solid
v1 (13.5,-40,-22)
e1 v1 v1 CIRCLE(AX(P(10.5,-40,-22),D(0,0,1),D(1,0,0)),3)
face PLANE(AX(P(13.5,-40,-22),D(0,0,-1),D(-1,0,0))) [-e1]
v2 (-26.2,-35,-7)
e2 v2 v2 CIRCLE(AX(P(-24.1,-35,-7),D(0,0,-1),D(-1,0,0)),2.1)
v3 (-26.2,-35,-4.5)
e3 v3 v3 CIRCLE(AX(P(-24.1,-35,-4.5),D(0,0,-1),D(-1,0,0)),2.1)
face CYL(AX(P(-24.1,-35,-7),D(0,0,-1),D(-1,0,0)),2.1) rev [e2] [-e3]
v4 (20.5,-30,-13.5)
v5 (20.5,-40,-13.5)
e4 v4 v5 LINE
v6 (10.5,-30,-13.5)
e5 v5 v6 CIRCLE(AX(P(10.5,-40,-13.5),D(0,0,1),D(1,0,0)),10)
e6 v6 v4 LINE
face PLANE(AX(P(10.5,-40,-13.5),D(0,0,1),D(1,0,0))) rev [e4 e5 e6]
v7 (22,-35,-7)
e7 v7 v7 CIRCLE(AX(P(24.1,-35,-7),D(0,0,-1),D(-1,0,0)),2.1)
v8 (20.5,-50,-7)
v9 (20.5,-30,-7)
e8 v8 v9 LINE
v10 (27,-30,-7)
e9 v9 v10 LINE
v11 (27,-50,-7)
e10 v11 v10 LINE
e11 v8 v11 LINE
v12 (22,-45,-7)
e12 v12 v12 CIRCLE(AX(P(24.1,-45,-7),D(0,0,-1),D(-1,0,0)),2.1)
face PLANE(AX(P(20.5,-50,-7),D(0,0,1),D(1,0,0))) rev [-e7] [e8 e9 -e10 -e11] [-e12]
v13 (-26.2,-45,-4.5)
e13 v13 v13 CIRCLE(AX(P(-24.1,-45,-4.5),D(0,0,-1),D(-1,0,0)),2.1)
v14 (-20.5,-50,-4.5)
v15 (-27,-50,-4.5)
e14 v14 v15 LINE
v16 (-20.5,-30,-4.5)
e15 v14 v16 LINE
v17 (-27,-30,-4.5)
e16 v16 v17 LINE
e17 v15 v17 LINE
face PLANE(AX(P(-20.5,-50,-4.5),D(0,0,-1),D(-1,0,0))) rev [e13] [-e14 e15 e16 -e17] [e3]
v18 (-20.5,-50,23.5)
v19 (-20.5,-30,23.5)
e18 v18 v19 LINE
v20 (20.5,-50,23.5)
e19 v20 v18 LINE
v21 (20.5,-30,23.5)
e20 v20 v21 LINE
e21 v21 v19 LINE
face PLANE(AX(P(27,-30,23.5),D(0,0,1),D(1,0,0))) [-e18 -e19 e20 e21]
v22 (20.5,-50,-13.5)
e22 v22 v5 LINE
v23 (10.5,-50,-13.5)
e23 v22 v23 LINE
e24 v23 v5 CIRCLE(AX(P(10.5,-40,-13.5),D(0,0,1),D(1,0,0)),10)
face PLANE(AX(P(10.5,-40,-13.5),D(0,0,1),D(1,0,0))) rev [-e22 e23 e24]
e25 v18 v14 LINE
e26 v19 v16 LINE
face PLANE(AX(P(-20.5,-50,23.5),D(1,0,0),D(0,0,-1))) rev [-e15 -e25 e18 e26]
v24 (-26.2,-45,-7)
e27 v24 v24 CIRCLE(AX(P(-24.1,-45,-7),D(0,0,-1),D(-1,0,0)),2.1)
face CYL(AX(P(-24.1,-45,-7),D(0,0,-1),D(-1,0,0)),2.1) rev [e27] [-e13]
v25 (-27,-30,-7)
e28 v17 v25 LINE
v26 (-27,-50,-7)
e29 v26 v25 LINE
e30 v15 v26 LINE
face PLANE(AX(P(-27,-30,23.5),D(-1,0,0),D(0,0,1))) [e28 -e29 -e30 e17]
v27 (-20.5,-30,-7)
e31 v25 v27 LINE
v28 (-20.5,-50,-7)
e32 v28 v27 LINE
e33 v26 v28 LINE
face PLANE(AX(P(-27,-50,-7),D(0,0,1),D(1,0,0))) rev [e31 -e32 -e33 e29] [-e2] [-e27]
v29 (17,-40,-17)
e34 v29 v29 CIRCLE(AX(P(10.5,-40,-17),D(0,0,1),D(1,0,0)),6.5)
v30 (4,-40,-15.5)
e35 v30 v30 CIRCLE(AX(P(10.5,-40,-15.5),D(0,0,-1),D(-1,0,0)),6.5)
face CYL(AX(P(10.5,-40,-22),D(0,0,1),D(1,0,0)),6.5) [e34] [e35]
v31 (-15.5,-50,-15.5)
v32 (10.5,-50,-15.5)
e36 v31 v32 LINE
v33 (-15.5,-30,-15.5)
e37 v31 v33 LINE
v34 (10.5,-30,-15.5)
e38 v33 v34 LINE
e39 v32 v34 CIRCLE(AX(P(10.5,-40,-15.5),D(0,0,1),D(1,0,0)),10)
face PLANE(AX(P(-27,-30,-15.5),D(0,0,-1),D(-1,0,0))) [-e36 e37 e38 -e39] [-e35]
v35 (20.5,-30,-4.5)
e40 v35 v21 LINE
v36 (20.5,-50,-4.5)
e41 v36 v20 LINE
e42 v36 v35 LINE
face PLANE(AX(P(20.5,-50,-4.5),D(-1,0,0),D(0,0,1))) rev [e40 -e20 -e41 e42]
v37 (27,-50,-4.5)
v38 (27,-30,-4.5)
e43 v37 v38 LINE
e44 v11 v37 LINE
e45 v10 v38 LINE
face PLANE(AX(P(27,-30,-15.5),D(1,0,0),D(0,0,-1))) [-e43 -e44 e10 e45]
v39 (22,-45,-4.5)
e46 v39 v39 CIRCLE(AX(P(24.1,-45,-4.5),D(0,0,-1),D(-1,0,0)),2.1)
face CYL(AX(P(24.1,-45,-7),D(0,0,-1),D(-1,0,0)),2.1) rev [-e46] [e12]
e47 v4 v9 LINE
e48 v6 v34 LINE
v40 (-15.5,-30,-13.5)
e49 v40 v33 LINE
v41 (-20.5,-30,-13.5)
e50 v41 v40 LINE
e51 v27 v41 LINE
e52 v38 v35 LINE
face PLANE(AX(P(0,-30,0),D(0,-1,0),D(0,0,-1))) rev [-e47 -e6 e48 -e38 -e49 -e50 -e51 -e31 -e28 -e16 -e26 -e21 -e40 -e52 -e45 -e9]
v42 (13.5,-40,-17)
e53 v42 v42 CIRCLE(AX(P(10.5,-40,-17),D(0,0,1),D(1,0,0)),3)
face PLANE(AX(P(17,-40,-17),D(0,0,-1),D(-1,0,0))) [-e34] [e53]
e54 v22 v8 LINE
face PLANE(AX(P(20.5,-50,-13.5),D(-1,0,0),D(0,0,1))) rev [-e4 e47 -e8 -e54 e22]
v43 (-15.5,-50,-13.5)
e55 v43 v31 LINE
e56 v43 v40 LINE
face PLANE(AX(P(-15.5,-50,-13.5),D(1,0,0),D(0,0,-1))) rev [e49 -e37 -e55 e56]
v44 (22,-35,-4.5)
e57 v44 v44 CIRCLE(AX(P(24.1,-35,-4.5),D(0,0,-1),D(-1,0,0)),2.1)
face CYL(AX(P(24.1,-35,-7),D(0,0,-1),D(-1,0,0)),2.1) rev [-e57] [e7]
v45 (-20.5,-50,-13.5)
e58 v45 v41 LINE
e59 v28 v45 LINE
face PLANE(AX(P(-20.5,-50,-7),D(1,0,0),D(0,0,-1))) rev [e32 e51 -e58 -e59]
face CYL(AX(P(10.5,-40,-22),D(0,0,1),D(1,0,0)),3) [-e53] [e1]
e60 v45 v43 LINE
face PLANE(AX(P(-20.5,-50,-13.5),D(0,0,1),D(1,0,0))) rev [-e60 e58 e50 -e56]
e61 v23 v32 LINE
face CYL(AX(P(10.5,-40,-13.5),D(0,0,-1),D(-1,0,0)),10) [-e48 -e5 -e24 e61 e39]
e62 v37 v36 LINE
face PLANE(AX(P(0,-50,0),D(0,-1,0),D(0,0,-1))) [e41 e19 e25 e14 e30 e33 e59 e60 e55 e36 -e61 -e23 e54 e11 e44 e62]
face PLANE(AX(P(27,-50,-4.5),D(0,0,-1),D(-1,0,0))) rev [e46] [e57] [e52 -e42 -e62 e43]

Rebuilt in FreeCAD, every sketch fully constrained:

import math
import FreeCAD as App
import Part
import Sketcher

V = App.Vector


def add_polygon(sketch, points):
    """Adds a closed chain of lines whose ends are joined by coincident constraints."""
    first, n = sketch.GeometryCount, len(points)
    for a, b in zip(points, points[1:] + points[:1]):
        sketch.addGeometry(Part.LineSegment(App.Vector(*a, 0), App.Vector(*b, 0)), False)
    for i in range(n):
        sketch.addConstraint(Sketcher.Constraint("Coincident", first + i, 2, first + (i + 1) % n, 1))

doc = App.newDocument("Part")
body = doc.addObject("PartDesign::Body", "Body")

# Sketch on XZ plane
sketch1 = doc.addObject("Sketcher::SketchObject", "Sketch")
body.addObject(sketch1)
sketch1.AttachmentSupport = (doc.XZ_Plane, [""])
sketch1.MapMode = "FlatFace"
sketch1.AttachmentOffset = App.Placement(V(0, 0, 50), App.Rotation())
add_polygon(sketch1, [(-27, 23.5), (-27, -15.5), (27, -15.5), (27, 23.5)])  # lines 0-3
sketch1.addConstraint(Sketcher.Constraint("Vertical", 0))
sketch1.addConstraint(Sketcher.Constraint("Horizontal", 1))
sketch1.addConstraint(Sketcher.Constraint("Vertical", 2))
sketch1.addConstraint(Sketcher.Constraint("Horizontal", 3))
sketch1.addConstraint(Sketcher.Constraint("DistanceX", 1, 1, 1, 2, 54.0))
sketch1.addConstraint(Sketcher.Constraint("DistanceY", 0, 2, 0, 1, 39.0))
sketch1.addConstraint(Sketcher.Constraint("DistanceX", 0, 2, -1, 1, 27.0))
sketch1.addConstraint(Sketcher.Constraint("DistanceY", 0, 2, -1, 1, 15.5))
pad1 = doc.addObject("PartDesign::Pad", "Pad")
body.addObject(pad1)
pad1.Profile = sketch1
pad1.Length = 20
pad1.Reversed = True

# Sketch on XZ plane
sketch2 = doc.addObject("Sketcher::SketchObject", "Sketch001")
body.addObject(sketch2)
sketch2.AttachmentSupport = (doc.XZ_Plane, [""])
sketch2.MapMode = "FlatFace"
sketch2.AttachmentOffset = App.Placement(V(0, 0, 30), App.Rotation())
add_polygon(sketch2, [(27, 23.5), (27, -4.5), (20.5, -4.5), (20.5, 23.5)])  # lines 0-3
sketch2.addConstraint(Sketcher.Constraint("Vertical", 0))
sketch2.addConstraint(Sketcher.Constraint("Horizontal", 1))
sketch2.addConstraint(Sketcher.Constraint("Vertical", 2))
sketch2.addConstraint(Sketcher.Constraint("Horizontal", 3))
sketch2.addConstraint(Sketcher.Constraint("DistanceY", 0, 2, 0, 1, 28.0))
sketch2.addConstraint(Sketcher.Constraint("DistanceX", 1, 2, 1, 1, 6.5))
sketch2.addConstraint(Sketcher.Constraint("DistanceX", -1, 1, 0, 2, 27.0))
sketch2.addConstraint(Sketcher.Constraint("DistanceY", 0, 2, -1, 1, 4.5))
pocket1 = doc.addObject("PartDesign::Pocket", "Pocket")
body.addObject(pocket1)
pocket1.Profile = sketch2
pocket1.Type = "ThroughAll"
pocket1.Reversed = True

# Sketch on XZ plane
sketch3 = doc.addObject("Sketcher::SketchObject", "Sketch002")
body.addObject(sketch3)
sketch3.AttachmentSupport = (doc.XZ_Plane, [""])
sketch3.MapMode = "FlatFace"
sketch3.AttachmentOffset = App.Placement(V(0, 0, 30), App.Rotation())
add_polygon(sketch3, [(-20.5, 23.5), (-20.5, -4.5), (-27, -4.5), (-27, 23.5)])  # lines 0-3
sketch3.addConstraint(Sketcher.Constraint("Vertical", 0))
sketch3.addConstraint(Sketcher.Constraint("Horizontal", 1))
sketch3.addConstraint(Sketcher.Constraint("Vertical", 2))
sketch3.addConstraint(Sketcher.Constraint("Horizontal", 3))
sketch3.addConstraint(Sketcher.Constraint("DistanceY", 0, 2, 0, 1, 28.0))
sketch3.addConstraint(Sketcher.Constraint("DistanceX", 1, 2, 1, 1, 6.5))
sketch3.addConstraint(Sketcher.Constraint("DistanceX", 1, 2, -1, 1, 27.0))
sketch3.addConstraint(Sketcher.Constraint("DistanceY", 0, 2, -1, 1, 4.5))
pocket2 = doc.addObject("PartDesign::Pocket", "Pocket001")
body.addObject(pocket2)
pocket2.Profile = sketch3
pocket2.Type = "ThroughAll"
pocket2.Reversed = True

# Sketch on XZ plane
sketch4 = doc.addObject("Sketcher::SketchObject", "Sketch003")
body.addObject(sketch4)
sketch4.AttachmentSupport = (doc.XZ_Plane, [""])
sketch4.MapMode = "FlatFace"
sketch4.AttachmentOffset = App.Placement(V(0, 0, 30), App.Rotation())
add_polygon(sketch4, [(-20.5, -7), (-20.5, -15.5), (-27, -15.5), (-27, -7)])  # lines 0-3
sketch4.addConstraint(Sketcher.Constraint("Vertical", 0))
sketch4.addConstraint(Sketcher.Constraint("Horizontal", 1))
sketch4.addConstraint(Sketcher.Constraint("Vertical", 2))
sketch4.addConstraint(Sketcher.Constraint("Horizontal", 3))
sketch4.addConstraint(Sketcher.Constraint("DistanceX", 1, 2, 1, 1, 6.5))
sketch4.addConstraint(Sketcher.Constraint("DistanceY", 0, 2, 0, 1, 8.5))
sketch4.addConstraint(Sketcher.Constraint("DistanceX", 1, 2, -1, 1, 27.0))
sketch4.addConstraint(Sketcher.Constraint("DistanceY", 2, 2, -1, 1, 7.0))
pocket3 = doc.addObject("PartDesign::Pocket", "Pocket002")
body.addObject(pocket3)
pocket3.Profile = sketch4
pocket3.Type = "ThroughAll"
pocket3.Reversed = True

# Sketch on XZ plane
sketch5 = doc.addObject("Sketcher::SketchObject", "Sketch004")
body.addObject(sketch5)
sketch5.AttachmentSupport = (doc.XZ_Plane, [""])
sketch5.MapMode = "FlatFace"
sketch5.AttachmentOffset = App.Placement(V(0, 0, 30), App.Rotation())
add_polygon(sketch5, [(-15.5, -13.5), (-15.5, -15.5), (-20.5, -15.5), (-20.5, -13.5)])  # lines 0-3
sketch5.addConstraint(Sketcher.Constraint("Vertical", 0))
sketch5.addConstraint(Sketcher.Constraint("Horizontal", 1))
sketch5.addConstraint(Sketcher.Constraint("Vertical", 2))
sketch5.addConstraint(Sketcher.Constraint("Horizontal", 3))
sketch5.addConstraint(Sketcher.Constraint("DistanceX", 1, 2, 1, 1, 5.0))
sketch5.addConstraint(Sketcher.Constraint("DistanceY", 0, 2, 0, 1, 2.0))
sketch5.addConstraint(Sketcher.Constraint("DistanceX", 0, 2, -1, 1, 15.5))
sketch5.addConstraint(Sketcher.Constraint("DistanceY", 0, 2, -1, 1, 15.5))
pocket4 = doc.addObject("PartDesign::Pocket", "Pocket003")
body.addObject(pocket4)
pocket4.Profile = sketch5
pocket4.Type = "ThroughAll"
pocket4.Reversed = True

# Sketch on XY plane
sketch6 = doc.addObject("Sketcher::SketchObject", "Sketch005")
body.addObject(sketch6)
sketch6.AttachmentSupport = (doc.XY_Plane, [""])
sketch6.MapMode = "FlatFace"
sketch6.AttachmentOffset = App.Placement(V(0, 0, -15.5), App.Rotation())
sketch6.addGeometry(Part.LineSegment(V(10.5, -30, 0), V(27, -30, 0)), False)
sketch6.addGeometry(Part.LineSegment(V(27, -30, 0), V(27, -50, 0)), False)
sketch6.addGeometry(Part.LineSegment(V(27, -50, 0), V(10.5, -50, 0)), False)
sketch6.addGeometry(Part.ArcOfCircle(Part.Circle(V(10.5, -40, 0), V(0, 0, 1), 10), math.radians(-90), math.radians(90)), False)
sketch6.addConstraint(Sketcher.Constraint("Coincident", 0, 2, 1, 1))
sketch6.addConstraint(Sketcher.Constraint("Coincident", 1, 2, 2, 1))
sketch6.addConstraint(Sketcher.Constraint("Tangent", 2, 2, 3, 1))
sketch6.addConstraint(Sketcher.Constraint("Tangent", 3, 2, 0, 1))
sketch6.addConstraint(Sketcher.Constraint("Horizontal", 0))
sketch6.addConstraint(Sketcher.Constraint("Vertical", 1))
sketch6.addConstraint(Sketcher.Constraint("Horizontal", 2))
sketch6.addConstraint(Sketcher.Constraint("Radius", 3, 10.0))
sketch6.addConstraint(Sketcher.Constraint("DistanceX", 0, 1, 0, 2, 16.5))
sketch6.addConstraint(Sketcher.Constraint("DistanceY", 3, 3, -1, 1, 40.0))
sketch6.addConstraint(Sketcher.Constraint("DistanceX", -1, 1, 0, 2, 27.0))
pocket5 = doc.addObject("PartDesign::Pocket", "Pocket004")
body.addObject(pocket5)
pocket5.Profile = sketch6
pocket5.Length = 2
pocket5.Reversed = True

# Sketch on XZ plane
sketch7 = doc.addObject("Sketcher::SketchObject", "Sketch006")
body.addObject(sketch7)
sketch7.AttachmentSupport = (doc.XZ_Plane, [""])
sketch7.MapMode = "FlatFace"
sketch7.AttachmentOffset = App.Placement(V(0, 0, 30), App.Rotation())
add_polygon(sketch7, [(27, -7), (27, -13.5), (20.5, -13.5), (20.5, -7)])  # lines 0-3
sketch7.addConstraint(Sketcher.Constraint("Vertical", 0))
sketch7.addConstraint(Sketcher.Constraint("Horizontal", 1))
sketch7.addConstraint(Sketcher.Constraint("Vertical", 2))
sketch7.addConstraint(Sketcher.Constraint("Horizontal", 3))
sketch7.addConstraint(Sketcher.Constraint("Equal", 3, 0))
sketch7.addConstraint(Sketcher.Constraint("DistanceX", 1, 2, 1, 1, 6.5))
sketch7.addConstraint(Sketcher.Constraint("DistanceX", -1, 1, 0, 2, 27.0))
sketch7.addConstraint(Sketcher.Constraint("DistanceY", 2, 2, -1, 1, 7.0))
pocket6 = doc.addObject("PartDesign::Pocket", "Pocket005")
body.addObject(pocket6)
pocket6.Profile = sketch7
pocket6.Type = "ThroughAll"
pocket6.Reversed = True

# Sketch on XZ plane
sketch8 = doc.addObject("Sketcher::SketchObject", "Sketch007")
body.addObject(sketch8)
sketch8.AttachmentSupport = (doc.XZ_Plane, [""])
sketch8.MapMode = "FlatFace"
sketch8.AttachmentOffset = App.Placement(V(0, 0, 40), App.Rotation())
add_polygon(sketch8, [(13.5, -22), (10.5, -22), (10.5, -15.5), (17, -15.5), (17, -17), (13.5, -17)])  # lines 0-5
sketch8.addGeometry(Part.LineSegment(V(10.5, -22, 0), V(10.5, -15.5, 0)), True)  # axis
sketch8.addConstraint(Sketcher.Constraint("Horizontal", 0))
sketch8.addConstraint(Sketcher.Constraint("Vertical", 1))
sketch8.addConstraint(Sketcher.Constraint("Horizontal", 2))
sketch8.addConstraint(Sketcher.Constraint("Vertical", 3))
sketch8.addConstraint(Sketcher.Constraint("Horizontal", 4))
sketch8.addConstraint(Sketcher.Constraint("Vertical", 5))
sketch8.addConstraint(Sketcher.Constraint("Vertical", 6))
sketch8.addConstraint(Sketcher.Constraint("Coincident", 6, 1, 0, 2))
sketch8.addConstraint(Sketcher.Constraint("Horizontal", 2, 2, 6, 2))
sketch8.addConstraint(Sketcher.Constraint("Equal", 2, 1))
sketch8.addConstraint(Sketcher.Constraint("DistanceX", 0, 2, 0, 1, 3.0))
sketch8.addConstraint(Sketcher.Constraint("DistanceY", 5, 2, 5, 1, 5.0))
sketch8.addConstraint(Sketcher.Constraint("DistanceX", 2, 1, 2, 2, 6.5))
sketch8.addConstraint(Sketcher.Constraint("DistanceY", 0, 2, -1, 1, 22.0))
sketch8.addConstraint(Sketcher.Constraint("DistanceX", -1, 1, 2, 2, 17.0))
revolution = doc.addObject("PartDesign::Revolution", "Revolution")
body.addObject(revolution)
revolution.Profile = sketch8
revolution.ReferenceAxis = (sketch8, ["Axis0"])
revolution.Angle = 360

# Sketch on XY plane
sketch9 = doc.addObject("Sketcher::SketchObject", "Sketch008")
body.addObject(sketch9)
sketch9.AttachmentSupport = (doc.XY_Plane, [""])
sketch9.MapMode = "FlatFace"
sketch9.AttachmentOffset = App.Placement(V(0, 0, -7), App.Rotation())
sketch9.addGeometry(Part.Circle(V(-24.1, -45, 0), V(0, 0, 1), 2.1), False)
sketch9.addGeometry(Part.Circle(V(-24.1, -35, 0), V(0, 0, 1), 2.1), False)
sketch9.addGeometry(Part.Circle(V(24.1, -45, 0), V(0, 0, 1), 2.1), False)
sketch9.addGeometry(Part.Circle(V(24.1, -35, 0), V(0, 0, 1), 2.1), False)
sketch9.addConstraint(Sketcher.Constraint("Equal", 0, 1))
sketch9.addConstraint(Sketcher.Constraint("Equal", 1, 2))
sketch9.addConstraint(Sketcher.Constraint("Equal", 2, 3))
sketch9.addConstraint(Sketcher.Constraint("Symmetric", 0, 3, 2, 3, -2))
sketch9.addConstraint(Sketcher.Constraint("Symmetric", 1, 3, 3, 3, -2))
sketch9.addConstraint(Sketcher.Constraint("Vertical", 0, 3, 1, 3))
sketch9.addConstraint(Sketcher.Constraint("Diameter", 0, 4.2))
sketch9.addConstraint(Sketcher.Constraint("DistanceY", 0, 3, -1, 1, 45.0))
sketch9.addConstraint(Sketcher.Constraint("DistanceY", 1, 3, -1, 1, 35.0))
sketch9.addConstraint(Sketcher.Constraint("DistanceX", 0, 3, -1, 1, 24.1))
doc.recompute()
hole = doc.addObject("PartDesign::Hole", "Hole")
body.addObject(hole)
hole.Profile = sketch9
hole.ThreadType = "None"
hole.Diameter = 4.2
hole.DepthType = "Dimension"
hole.Depth = 30.5
hole.DrillPoint = "Flat"
hole.Reversed = True

doc.recompute()
